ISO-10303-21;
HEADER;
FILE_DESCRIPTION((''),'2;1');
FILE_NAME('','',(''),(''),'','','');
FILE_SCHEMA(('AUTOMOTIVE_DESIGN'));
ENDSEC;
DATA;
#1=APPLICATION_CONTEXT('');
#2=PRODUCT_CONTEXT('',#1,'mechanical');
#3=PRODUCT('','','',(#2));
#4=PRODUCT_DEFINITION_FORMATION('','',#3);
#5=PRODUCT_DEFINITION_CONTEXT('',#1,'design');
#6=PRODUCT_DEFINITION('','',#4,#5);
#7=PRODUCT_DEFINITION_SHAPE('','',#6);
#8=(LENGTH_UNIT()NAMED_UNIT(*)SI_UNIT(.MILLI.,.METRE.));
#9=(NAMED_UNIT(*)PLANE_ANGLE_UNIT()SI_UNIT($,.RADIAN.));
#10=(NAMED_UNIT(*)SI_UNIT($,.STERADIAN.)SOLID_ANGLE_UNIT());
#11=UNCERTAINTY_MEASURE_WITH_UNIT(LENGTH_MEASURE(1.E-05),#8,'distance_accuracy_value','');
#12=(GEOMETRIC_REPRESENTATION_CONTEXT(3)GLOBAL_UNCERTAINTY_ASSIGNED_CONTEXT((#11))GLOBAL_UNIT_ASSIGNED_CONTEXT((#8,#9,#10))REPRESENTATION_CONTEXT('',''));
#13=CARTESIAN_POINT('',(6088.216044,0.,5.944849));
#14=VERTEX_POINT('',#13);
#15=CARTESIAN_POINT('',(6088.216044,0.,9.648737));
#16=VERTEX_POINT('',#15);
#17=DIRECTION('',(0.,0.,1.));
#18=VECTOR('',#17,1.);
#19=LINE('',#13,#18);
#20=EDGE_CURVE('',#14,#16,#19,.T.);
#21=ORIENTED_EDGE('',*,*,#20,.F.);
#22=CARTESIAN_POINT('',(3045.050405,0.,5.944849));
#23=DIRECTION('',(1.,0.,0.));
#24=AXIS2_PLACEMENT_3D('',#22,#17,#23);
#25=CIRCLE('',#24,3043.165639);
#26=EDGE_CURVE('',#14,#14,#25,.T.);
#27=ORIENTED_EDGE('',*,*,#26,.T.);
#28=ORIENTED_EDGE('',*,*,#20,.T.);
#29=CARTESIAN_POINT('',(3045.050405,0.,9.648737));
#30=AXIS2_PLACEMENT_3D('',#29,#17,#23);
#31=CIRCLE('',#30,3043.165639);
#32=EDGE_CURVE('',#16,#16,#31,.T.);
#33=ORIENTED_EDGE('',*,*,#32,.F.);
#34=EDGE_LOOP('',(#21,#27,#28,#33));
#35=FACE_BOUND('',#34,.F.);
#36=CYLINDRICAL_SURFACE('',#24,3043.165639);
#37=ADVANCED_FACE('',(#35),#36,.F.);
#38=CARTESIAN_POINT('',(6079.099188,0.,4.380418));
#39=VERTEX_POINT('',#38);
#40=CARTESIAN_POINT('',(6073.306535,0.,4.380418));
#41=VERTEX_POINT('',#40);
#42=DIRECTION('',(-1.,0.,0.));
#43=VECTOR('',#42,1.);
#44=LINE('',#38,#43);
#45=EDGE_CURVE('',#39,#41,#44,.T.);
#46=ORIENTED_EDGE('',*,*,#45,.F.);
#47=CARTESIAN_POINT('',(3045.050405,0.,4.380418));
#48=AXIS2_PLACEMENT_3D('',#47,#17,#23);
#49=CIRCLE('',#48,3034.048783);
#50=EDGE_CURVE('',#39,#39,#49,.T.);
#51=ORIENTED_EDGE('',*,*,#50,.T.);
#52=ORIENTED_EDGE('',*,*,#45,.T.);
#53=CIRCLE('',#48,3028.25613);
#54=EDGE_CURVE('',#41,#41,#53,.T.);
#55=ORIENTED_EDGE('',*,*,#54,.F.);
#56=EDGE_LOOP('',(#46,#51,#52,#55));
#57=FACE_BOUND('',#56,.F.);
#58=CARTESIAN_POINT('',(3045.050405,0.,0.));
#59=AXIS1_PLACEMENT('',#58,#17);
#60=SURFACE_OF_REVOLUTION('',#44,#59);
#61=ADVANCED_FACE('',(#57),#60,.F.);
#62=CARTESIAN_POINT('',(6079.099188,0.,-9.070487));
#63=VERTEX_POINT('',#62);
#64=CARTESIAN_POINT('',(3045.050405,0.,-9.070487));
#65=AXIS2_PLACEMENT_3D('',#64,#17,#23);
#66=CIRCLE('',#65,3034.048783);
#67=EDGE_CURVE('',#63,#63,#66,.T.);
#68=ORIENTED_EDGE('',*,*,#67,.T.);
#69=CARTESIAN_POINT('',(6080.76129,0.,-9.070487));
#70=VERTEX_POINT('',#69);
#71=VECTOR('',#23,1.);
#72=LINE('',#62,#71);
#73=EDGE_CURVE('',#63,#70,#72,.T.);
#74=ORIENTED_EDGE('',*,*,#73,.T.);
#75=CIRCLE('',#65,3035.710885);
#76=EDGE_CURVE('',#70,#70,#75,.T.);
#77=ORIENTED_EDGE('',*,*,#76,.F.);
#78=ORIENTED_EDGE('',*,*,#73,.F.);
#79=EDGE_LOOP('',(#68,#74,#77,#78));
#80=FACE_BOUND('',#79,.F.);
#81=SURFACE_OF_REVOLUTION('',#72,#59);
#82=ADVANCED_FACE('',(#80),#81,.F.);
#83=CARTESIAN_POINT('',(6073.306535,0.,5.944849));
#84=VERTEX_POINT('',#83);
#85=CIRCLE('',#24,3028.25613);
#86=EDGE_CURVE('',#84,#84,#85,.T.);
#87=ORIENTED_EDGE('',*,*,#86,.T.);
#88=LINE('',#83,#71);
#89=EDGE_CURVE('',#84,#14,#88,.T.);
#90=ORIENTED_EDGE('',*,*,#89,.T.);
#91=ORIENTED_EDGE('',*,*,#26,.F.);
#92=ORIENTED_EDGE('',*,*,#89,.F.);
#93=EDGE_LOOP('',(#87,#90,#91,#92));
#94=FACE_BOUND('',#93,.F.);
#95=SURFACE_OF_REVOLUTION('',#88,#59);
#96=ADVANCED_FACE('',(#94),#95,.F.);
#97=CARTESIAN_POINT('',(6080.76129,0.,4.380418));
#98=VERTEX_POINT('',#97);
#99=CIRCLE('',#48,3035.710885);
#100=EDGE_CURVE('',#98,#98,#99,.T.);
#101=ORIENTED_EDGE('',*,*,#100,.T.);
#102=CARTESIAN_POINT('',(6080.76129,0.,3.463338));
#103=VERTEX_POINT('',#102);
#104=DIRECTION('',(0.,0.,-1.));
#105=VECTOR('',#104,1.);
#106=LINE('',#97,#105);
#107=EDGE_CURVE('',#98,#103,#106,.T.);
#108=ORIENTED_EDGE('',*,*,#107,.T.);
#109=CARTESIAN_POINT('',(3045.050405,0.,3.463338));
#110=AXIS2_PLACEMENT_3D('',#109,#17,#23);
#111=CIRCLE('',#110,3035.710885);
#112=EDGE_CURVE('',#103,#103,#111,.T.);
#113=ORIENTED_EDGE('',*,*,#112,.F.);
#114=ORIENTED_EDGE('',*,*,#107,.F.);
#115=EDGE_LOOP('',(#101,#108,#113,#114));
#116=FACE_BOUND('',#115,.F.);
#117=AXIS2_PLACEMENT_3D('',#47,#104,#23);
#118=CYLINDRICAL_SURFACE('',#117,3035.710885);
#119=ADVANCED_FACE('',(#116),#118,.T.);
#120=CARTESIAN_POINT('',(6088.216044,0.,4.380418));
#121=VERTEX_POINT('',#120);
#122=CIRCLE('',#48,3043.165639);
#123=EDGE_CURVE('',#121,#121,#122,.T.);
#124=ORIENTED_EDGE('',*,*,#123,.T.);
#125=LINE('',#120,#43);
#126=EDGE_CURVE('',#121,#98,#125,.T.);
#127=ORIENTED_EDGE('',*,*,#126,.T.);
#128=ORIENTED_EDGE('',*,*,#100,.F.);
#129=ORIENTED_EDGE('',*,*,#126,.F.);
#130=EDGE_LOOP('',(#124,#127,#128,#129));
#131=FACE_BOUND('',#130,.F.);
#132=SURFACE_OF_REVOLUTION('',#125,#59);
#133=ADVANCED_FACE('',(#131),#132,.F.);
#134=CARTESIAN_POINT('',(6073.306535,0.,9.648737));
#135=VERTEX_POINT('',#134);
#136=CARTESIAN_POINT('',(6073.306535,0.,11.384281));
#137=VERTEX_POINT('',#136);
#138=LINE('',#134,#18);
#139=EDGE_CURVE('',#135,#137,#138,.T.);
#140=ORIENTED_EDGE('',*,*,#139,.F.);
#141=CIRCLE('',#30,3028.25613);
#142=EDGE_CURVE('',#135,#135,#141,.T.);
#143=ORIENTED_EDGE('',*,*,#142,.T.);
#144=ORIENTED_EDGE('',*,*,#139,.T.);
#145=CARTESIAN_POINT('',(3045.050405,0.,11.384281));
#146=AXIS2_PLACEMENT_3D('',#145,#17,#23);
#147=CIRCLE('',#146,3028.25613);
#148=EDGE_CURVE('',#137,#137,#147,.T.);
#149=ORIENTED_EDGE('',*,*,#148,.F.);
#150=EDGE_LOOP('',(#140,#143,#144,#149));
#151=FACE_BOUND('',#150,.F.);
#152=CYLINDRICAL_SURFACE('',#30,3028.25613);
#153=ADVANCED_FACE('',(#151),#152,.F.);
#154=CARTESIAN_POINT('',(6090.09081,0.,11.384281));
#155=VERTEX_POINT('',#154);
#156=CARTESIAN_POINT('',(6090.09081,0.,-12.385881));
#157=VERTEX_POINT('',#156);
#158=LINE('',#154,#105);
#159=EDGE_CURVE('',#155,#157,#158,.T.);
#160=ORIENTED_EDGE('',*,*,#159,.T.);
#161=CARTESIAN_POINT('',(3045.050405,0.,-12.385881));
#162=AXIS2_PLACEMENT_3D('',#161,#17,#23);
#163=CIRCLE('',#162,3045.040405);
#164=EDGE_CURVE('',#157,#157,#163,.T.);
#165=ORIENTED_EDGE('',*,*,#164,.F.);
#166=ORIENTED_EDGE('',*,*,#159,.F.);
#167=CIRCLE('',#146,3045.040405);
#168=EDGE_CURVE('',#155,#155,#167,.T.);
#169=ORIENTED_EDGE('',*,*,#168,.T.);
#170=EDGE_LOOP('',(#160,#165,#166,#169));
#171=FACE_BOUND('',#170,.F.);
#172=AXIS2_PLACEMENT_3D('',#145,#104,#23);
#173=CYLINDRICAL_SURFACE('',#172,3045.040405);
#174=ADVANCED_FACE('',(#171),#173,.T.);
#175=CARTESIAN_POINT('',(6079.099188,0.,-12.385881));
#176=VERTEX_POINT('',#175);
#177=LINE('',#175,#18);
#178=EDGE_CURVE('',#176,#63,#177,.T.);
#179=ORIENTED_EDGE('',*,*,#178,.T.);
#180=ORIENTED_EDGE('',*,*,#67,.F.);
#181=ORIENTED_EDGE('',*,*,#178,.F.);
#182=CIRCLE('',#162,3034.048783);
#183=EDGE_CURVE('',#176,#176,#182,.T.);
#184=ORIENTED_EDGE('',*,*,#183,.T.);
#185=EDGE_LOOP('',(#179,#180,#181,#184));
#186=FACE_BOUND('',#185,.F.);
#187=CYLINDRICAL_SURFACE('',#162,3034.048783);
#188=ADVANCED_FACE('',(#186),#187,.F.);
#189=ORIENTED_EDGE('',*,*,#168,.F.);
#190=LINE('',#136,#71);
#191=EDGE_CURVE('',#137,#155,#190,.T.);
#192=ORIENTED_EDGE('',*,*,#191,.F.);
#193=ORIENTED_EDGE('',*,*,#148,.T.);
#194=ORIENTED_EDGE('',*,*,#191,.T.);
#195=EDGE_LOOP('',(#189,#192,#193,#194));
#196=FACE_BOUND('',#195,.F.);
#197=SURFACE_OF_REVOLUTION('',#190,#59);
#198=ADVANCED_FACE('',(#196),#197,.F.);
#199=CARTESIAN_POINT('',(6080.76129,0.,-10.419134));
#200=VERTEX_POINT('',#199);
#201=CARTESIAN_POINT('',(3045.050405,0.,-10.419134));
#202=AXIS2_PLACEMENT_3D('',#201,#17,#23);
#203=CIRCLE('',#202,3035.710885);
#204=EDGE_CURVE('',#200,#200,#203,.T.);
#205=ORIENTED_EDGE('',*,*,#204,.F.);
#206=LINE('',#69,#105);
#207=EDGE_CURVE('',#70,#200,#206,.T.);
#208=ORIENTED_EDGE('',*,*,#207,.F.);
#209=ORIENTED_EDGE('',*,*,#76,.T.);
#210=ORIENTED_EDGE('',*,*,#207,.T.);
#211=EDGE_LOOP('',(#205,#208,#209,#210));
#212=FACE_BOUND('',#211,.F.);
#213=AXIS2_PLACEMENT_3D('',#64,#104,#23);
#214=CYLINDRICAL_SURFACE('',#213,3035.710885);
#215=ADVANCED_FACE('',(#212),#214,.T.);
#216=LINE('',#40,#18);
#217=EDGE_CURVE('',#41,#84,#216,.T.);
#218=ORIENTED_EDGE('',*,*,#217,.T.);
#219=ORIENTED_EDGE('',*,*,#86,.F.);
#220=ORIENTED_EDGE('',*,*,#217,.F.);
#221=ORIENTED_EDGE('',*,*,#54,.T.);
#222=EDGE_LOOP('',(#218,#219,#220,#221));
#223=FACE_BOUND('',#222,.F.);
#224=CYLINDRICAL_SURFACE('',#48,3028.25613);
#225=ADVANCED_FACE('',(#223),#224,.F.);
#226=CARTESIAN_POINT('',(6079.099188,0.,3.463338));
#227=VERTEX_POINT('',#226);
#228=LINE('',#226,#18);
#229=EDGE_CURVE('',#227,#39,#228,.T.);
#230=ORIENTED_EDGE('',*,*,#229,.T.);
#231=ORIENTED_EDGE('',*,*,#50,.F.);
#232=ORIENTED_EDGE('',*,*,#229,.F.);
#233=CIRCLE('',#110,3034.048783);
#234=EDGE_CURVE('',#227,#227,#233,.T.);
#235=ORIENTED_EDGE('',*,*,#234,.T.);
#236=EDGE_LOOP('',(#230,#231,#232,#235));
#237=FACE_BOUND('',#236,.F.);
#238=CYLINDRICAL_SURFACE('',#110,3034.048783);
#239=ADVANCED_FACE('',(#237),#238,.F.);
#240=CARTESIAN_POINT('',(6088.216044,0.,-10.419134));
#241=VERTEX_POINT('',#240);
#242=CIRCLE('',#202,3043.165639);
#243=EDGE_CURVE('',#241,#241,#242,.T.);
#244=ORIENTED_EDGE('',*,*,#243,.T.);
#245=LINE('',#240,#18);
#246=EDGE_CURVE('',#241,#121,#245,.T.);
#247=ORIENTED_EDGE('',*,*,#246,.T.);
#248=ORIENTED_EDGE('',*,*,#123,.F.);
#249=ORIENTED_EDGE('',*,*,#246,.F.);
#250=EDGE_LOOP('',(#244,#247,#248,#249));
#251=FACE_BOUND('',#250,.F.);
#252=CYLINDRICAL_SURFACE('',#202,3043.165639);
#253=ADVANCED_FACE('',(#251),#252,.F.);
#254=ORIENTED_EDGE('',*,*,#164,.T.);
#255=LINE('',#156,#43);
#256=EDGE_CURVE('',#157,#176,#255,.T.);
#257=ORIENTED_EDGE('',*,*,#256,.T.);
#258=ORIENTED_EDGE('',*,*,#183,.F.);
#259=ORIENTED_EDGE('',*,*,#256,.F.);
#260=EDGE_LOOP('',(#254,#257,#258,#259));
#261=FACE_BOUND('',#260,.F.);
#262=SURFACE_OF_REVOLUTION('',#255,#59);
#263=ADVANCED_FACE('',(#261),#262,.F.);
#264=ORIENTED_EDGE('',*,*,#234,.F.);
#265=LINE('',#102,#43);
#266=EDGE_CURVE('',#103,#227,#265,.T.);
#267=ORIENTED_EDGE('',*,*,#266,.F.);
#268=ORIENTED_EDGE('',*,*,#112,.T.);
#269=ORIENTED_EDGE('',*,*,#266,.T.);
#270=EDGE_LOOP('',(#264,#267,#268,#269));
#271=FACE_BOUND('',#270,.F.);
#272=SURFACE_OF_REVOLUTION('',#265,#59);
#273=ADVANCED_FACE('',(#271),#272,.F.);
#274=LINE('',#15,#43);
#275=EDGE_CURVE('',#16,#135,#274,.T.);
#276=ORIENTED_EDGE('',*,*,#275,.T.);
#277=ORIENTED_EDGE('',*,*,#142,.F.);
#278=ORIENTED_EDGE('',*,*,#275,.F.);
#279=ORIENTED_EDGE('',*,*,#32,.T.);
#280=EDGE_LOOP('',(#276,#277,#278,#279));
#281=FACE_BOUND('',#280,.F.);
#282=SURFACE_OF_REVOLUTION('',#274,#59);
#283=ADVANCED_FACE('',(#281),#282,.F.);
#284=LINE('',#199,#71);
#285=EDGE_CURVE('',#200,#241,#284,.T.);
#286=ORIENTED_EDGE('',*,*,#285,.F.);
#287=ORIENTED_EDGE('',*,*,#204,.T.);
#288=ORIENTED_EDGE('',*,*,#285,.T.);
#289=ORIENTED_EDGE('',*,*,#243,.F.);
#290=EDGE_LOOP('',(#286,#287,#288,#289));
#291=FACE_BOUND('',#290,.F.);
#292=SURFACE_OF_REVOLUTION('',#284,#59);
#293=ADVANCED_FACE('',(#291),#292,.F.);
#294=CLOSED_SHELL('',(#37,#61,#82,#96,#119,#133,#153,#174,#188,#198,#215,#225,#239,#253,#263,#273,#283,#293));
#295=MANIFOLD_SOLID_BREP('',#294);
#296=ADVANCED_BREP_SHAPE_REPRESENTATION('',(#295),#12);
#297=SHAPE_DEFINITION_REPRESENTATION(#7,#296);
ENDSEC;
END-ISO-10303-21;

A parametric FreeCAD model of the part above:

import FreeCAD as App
import Part
import Sketcher

V = App.Vector
Q = App.Units.Quantity

doc = App.newDocument("Part")
body = doc.addObject("PartDesign::Body", "Body")

# Sketch on XZ plane
sketch1 = body.newObject("Sketcher::SketchObject", "Sketch")
sketch1.AttachmentSupport = (doc.getObject("XZ_Plane"), [""])
sketch1.MapMode = "FlatFace"
sketch1.addGeometry(Part.LineSegment(V(16.794275, 11.384281, 0), V(0.01, 11.384281, 0)), False)
sketch1.addGeometry(Part.LineSegment(V(0.01, 11.384281, 0), V(0.01, -12.385881, 0)), False)
sketch1.addGeometry(Part.LineSegment(V(0.01, -12.385881, 0), V(11.001622, -12.385881, 0)), False)
sketch1.addGeometry(Part.LineSegment(V(11.001622, -12.385881, 0), V(11.001622, -9.070487, 0)), False)
sketch1.addGeometry(Part.LineSegment(V(11.001622, -9.070487, 0), V(9.33952, -9.070487, 0)), False)
sketch1.addGeometry(Part.LineSegment(V(9.33952, -9.070487, 0), V(9.33952, -10.419134, 0)), False)
sketch1.addGeometry(Part.LineSegment(V(9.33952, -10.419134, 0), V(1.884766, -10.419134, 0)), False)
sketch1.addGeometry(Part.LineSegment(V(1.884766, -10.419134, 0), V(1.884766, 4.380418, 0)), False)
sketch1.addGeometry(Part.LineSegment(V(1.884766, 4.380418, 0), V(9.33952, 4.380418, 0)), False)
sketch1.addGeometry(Part.LineSegment(V(9.33952, 4.380418, 0), V(9.33952, 3.463338, 0)), False)
sketch1.addGeometry(Part.LineSegment(V(9.33952, 3.463338, 0), V(11.001622, 3.463338, 0)), False)
sketch1.addGeometry(Part.LineSegment(V(11.001622, 3.463338, 0), V(11.001622, 4.380418, 0)), False)
sketch1.addGeometry(Part.LineSegment(V(11.001622, 4.380418, 0), V(16.794275, 4.380418, 0)), False)
sketch1.addGeometry(Part.LineSegment(V(16.794275, 4.380418, 0), V(16.794275, 5.944849, 0)), False)
sketch1.addGeometry(Part.LineSegment(V(16.794275, 5.944849, 0), V(1.884766, 5.944849, 0)), False)
sketch1.addGeometry(Part.LineSegment(V(1.884766, 5.944849, 0), V(1.884766, 9.648737, 0)), False)
sketch1.addGeometry(Part.LineSegment(V(1.884766, 9.648737, 0), V(16.794275, 9.648737, 0)), False)
sketch1.addGeometry(Part.LineSegment(V(16.794275, 9.648737, 0), V(16.794275, 11.384281, 0)), False)
sketch1.addConstraint(Sketcher.Constraint("Coincident", 0, 2, 1, 1))
sketch1.addConstraint(Sketcher.Constraint("Coincident", 1, 2, 2, 1))
sketch1.addConstraint(Sketcher.Constraint("Coincident", 2, 2, 3, 1))
sketch1.addConstraint(Sketcher.Constraint("Coincident", 3, 2, 4, 1))
sketch1.addConstraint(Sketcher.Constraint("Coincident", 4, 2, 5, 1))
sketch1.addConstraint(Sketcher.Constraint("Coincident", 5, 2, 6, 1))
sketch1.addConstraint(Sketcher.Constraint("Coincident", 6, 2, 7, 1))
sketch1.addConstraint(Sketcher.Constraint("Coincident", 7, 2, 8, 1))
sketch1.addConstraint(Sketcher.Constraint("Coincident", 8, 2, 9, 1))
sketch1.addConstraint(Sketcher.Constraint("Coincident", 9, 2, 10, 1))
sketch1.addConstraint(Sketcher.Constraint("Coincident", 10, 2, 11, 1))
sketch1.addConstraint(Sketcher.Constraint("Coincident", 11, 2, 12, 1))
sketch1.addConstraint(Sketcher.Constraint("Coincident", 12, 2, 13, 1))
sketch1.addConstraint(Sketcher.Constraint("Coincident", 13, 2, 14, 1))
sketch1.addConstraint(Sketcher.Constraint("Coincident", 14, 2, 15, 1))
sketch1.addConstraint(Sketcher.Constraint("Coincident", 15, 2, 16, 1))
sketch1.addConstraint(Sketcher.Constraint("Coincident", 16, 2, 17, 1))
sketch1.addConstraint(Sketcher.Constraint("Coincident", 17, 2, 0, 1))
sketch1.addConstraint(Sketcher.Constraint("Horizontal", 0))
sketch1.addConstraint(Sketcher.Constraint("Vertical", 1))
sketch1.addConstraint(Sketcher.Constraint("Horizontal", 2))
sketch1.addConstraint(Sketcher.Constraint("Vertical", 3))
sketch1.addConstraint(Sketcher.Constraint("Horizontal", 4))
sketch1.addConstraint(Sketcher.Constraint("Vertical", 5))
sketch1.addConstraint(Sketcher.Constraint("Horizontal", 6))
sketch1.addConstraint(Sketcher.Constraint("Vertical", 7))
sketch1.addConstraint(Sketcher.Constraint("Horizontal", 8))
sketch1.addConstraint(Sketcher.Constraint("Vertical", 9))
sketch1.addConstraint(Sketcher.Constraint("Horizontal", 10))
sketch1.addConstraint(Sketcher.Constraint("Vertical", 11))
sketch1.addConstraint(Sketcher.Constraint("Horizontal", 12))
sketch1.addConstraint(Sketcher.Constraint("Vertical", 13))
sketch1.addConstraint(Sketcher.Constraint("Horizontal", 14))
sketch1.addConstraint(Sketcher.Constraint("Vertical", 15))
sketch1.addConstraint(Sketcher.Constraint("Horizontal", 16))
sketch1.addConstraint(Sketcher.Constraint("Vertical", 17))
sketch1.addConstraint(Sketcher.Constraint("Horizontal", 8, 2, 11, 2))
sketch1.addConstraint(Sketcher.Constraint("Vertical", 5, 2, 8, 2))
sketch1.addConstraint(Sketcher.Constraint("Vertical", 3, 2, 10, 2))
sketch1.addConstraint(Sketcher.Constraint("Vertical", 7, 2, 14, 2))
sketch1.addConstraint(Sketcher.Constraint("Vertical", 13, 2, 16, 2))
sketch1.addConstraint(Sketcher.Constraint("DistanceX", -1, 1, 0, 2, Q("0.01 mm")))
sketch1.addConstraint(Sketcher.Constraint("DistanceX", 4, 2, 4, 1, Q("1.662102 mm")))
sketch1.addConstraint(Sketcher.Constraint("DistanceX", 14, 2, 14, 1, Q("14.909509 mm")))
sketch1.addConstraint(Sketcher.Constraint("DistanceY", 1, 2, 1, 1, Q("23.770162 mm")))
sketch1.addConstraint(Sketcher.Constraint("DistanceY", 7, 1, 7, 2, Q("14.799552 mm")))
sketch1.addConstraint(Sketcher.Constraint("DistanceY", 9, 2, 9, 1, Q("0.91708 mm")))
sketch1.addConstraint(Sketcher.Constraint("DistanceY", 13, 1, 13, 2, Q("1.564431 mm")))
sketch1.addConstraint(Sketcher.Constraint("DistanceY", 15, 1, 15, 2, Q("3.703888 mm")))
sketch1.addConstraint(Sketcher.Constraint("DistanceX", 0, 2, 0, 1, Q("16.784275 mm")))
sketch1.addConstraint(Sketcher.Constraint("DistanceX", 2, 1, 2, 2, Q("10.991622 mm")))
sketch1.addConstraint(Sketcher.Constraint("DistanceY", 3, 1, 3, 2, Q("3.315394 mm")))
sketch1.addConstraint(Sketcher.Constraint("DistanceY", 5, 2, 5, 1, Q("1.348647 mm")))
sketch1.addConstraint(Sketcher.Constraint("DistanceY", -1, 1, 0, 2, Q("11.384281 mm")))

# Sketch on XY plane
sketch2 = body.newObject("Sketcher::SketchObject", "Sketch001")
sketch2.AttachmentSupport = (doc.getObject("XY_Plane"), [""])
sketch2.MapMode = "FlatFace"
sketch2.addGeometry(Part.Circle(V(3045.050405, 0, 0), V(0, 0, 1), 3045), False)
sketch2.addConstraint(Sketcher.Constraint("PointOnObject", 0, 3, -1))
sketch2.addConstraint(Sketcher.Constraint("Diameter", 0, Q("6090 mm")))
sketch2.addConstraint(Sketcher.Constraint("DistanceX", -1, 1, 0, 3, Q("3045.050405 mm")))
doc.recompute()

additivepipe = body.newObject("PartDesign::AdditivePipe", "AdditivePipe")
additivepipe.Profile = sketch1
additivepipe.Spine = (sketch2, ["Edge1"])

# Sketch on XZ plane
sketch3 = body.newObject("Sketcher::SketchObject", "Sketch002")
sketch3.AttachmentSupport = (doc.getObject("XZ_Plane"), [""])
sketch3.MapMode = "FlatFace"
sketch3.addGeometry(Part.LineSegment(V(1675.175023, 38.541182, 0), V(1675.175023, -46.923941, 0)), False)
sketch3.addGeometry(Part.LineSegment(V(1675.175023, -46.923941, 0), V(2900.175023, -46.923941, 0)), False)
sketch3.addGeometry(Part.LineSegment(V(2900.175023, -46.923941, 0), V(2900.175023, 38.541182, 0)), False)
sketch3.addGeometry(Part.LineSegment(V(2900.175023, 38.541182, 0), V(1675.175023, 38.541182, 0)), False)
sketch3.addConstraint(Sketcher.Constraint("Coincident", 0, 2, 1, 1))
sketch3.addConstraint(Sketcher.Constraint("Coincident", 1, 2, 2, 1))
sketch3.addConstraint(Sketcher.Constraint("Coincident", 2, 2, 3, 1))
sketch3.addConstraint(Sketcher.Constraint("Coincident", 3, 2, 0, 1))
sketch3.addConstraint(Sketcher.Constraint("Vertical", 0))
sketch3.addConstraint(Sketcher.Constraint("Horizontal", 1))
sketch3.addConstraint(Sketcher.Constraint("Vertical", 2))
sketch3.addConstraint(Sketcher.Constraint("Horizontal", 3))
sketch3.addConstraint(Sketcher.Constraint("DistanceX", 1, 1, 1, 2, Q("1225 mm")))
sketch3.addConstraint(Sketcher.Constraint("DistanceY", 0, 2, 0, 1, Q("85.465123 mm")))
sketch3.addConstraint(Sketcher.Constraint("DistanceY", 0, 2, -1, 1, Q("46.923941 mm")))
sketch3.addConstraint(Sketcher.Constraint("DistanceX", -1, 1, 0, 2, Q("1675.175023 mm")))
pocket1 = body.newObject("PartDesign::Pocket", "Pocket")
pocket1.Profile = sketch3
pocket1.Length = 2400
pocket1.Reversed = True

doc.recompute()
